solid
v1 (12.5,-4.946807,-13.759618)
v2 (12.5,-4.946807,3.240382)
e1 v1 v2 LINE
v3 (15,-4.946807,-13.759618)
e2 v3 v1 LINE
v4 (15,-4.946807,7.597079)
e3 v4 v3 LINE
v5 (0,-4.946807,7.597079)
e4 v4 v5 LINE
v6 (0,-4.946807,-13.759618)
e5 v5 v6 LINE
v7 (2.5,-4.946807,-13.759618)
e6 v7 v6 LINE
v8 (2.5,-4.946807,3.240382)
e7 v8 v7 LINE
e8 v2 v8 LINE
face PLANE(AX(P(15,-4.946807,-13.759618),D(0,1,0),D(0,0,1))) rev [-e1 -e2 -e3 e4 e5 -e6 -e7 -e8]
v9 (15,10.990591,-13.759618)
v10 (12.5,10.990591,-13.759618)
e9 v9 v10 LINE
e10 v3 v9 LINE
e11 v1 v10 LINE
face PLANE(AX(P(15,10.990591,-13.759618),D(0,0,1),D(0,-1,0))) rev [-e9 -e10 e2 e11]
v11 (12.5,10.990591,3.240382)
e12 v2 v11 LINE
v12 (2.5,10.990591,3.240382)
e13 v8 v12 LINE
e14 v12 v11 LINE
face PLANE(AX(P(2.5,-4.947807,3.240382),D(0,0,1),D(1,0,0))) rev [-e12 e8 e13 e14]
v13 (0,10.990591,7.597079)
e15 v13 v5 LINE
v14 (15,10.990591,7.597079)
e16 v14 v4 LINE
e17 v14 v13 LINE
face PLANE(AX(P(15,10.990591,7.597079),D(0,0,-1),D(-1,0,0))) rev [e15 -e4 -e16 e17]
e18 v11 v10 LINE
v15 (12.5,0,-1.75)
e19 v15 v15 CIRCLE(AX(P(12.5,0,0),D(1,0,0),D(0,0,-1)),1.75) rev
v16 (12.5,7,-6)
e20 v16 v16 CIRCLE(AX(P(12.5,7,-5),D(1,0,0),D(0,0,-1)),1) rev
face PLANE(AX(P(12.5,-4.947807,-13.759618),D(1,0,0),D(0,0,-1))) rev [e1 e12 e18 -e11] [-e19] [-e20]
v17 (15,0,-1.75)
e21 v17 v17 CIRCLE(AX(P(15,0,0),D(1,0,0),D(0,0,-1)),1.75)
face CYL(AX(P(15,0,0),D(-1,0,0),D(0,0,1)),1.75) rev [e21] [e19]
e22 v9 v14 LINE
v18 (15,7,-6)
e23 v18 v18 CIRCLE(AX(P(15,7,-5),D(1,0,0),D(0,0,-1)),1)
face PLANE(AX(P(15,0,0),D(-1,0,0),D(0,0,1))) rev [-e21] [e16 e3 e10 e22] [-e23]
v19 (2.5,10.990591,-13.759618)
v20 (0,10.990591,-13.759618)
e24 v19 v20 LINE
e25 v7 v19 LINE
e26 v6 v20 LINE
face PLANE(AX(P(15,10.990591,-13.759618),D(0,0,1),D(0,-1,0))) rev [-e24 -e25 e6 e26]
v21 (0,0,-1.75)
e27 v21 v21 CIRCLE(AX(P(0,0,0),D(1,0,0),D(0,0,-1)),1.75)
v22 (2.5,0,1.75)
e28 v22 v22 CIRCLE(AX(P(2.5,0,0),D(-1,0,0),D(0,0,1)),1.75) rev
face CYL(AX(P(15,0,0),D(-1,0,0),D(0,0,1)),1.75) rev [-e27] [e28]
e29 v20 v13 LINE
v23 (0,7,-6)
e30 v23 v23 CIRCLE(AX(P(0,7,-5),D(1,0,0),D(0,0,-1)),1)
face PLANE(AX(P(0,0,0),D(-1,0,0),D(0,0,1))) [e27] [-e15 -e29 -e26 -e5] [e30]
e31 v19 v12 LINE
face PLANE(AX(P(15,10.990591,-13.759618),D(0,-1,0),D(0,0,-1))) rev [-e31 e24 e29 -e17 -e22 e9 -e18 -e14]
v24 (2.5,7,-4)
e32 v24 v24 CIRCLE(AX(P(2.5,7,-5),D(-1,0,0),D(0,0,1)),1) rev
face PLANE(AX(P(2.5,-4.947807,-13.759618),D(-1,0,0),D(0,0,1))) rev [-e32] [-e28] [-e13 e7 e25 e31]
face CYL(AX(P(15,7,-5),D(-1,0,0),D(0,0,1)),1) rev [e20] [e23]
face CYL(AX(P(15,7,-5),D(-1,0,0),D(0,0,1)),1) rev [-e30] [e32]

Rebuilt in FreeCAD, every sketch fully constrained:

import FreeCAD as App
import Part
import Sketcher
from FreeCAD import Vector


def add_polygon(sketch, points):
    """Adds a closed chain of lines whose ends are joined by coincident constraints."""
    first, n = sketch.GeometryCount, len(points)
    for a, b in zip(points, points[1:] + points[:1]):
        sketch.addGeometry(Part.LineSegment(App.Vector(*a, 0), App.Vector(*b, 0)), False)
    for i in range(n):
        sketch.addConstraint(Sketcher.Constraint("Coincident", first + i, 2, first + (i + 1) % n, 1))

doc = App.newDocument("Part")
body = doc.addObject("PartDesign::Body", "Body")

sketch1 = doc.addObject("Sketcher::SketchObject", "Sketch")
body.addObject(sketch1)
sketch1.AttachmentSupport = (doc.YZ_Plane, [""])
sketch1.MapMode = "FlatFace"
add_polygon(sketch1, [(11, 7.6), (-4.9, 7.6), (-4.9, -13.8), (11, -13.8)])
sketch1.addGeometry(Part.Circle(Vector(0, 0, 0), Vector(0, 0, 1), 1.8), False)
sketch1.addGeometry(Part.Circle(Vector(7, -5, 0), Vector(0, 0, 1), 1), False)
sketch1.addConstraint(Sketcher.Constraint("Horizontal", 0))
sketch1.addConstraint(Sketcher.Constraint("Vertical", 1))
sketch1.addConstraint(Sketcher.Constraint("Horizontal", 2))
sketch1.addConstraint(Sketcher.Constraint("Vertical", 3))
sketch1.addConstraint(Sketcher.Constraint("Coincident", 4, 3, -1, 1))
sketch1.addConstraint(Sketcher.Constraint("Diameter", 5, 2.0))
sketch1.addConstraint(Sketcher.Constraint("Diameter", 4, 3.5))
sketch1.addConstraint(Sketcher.Constraint("DistanceX", -1, 1, 5, 3, 7.0))
sketch1.addConstraint(Sketcher.Constraint("DistanceY", 5, 3, -1, 1, 5.0))
sketch1.addConstraint(Sketcher.Constraint("DistanceX", 0, 2, 0, 1, 15.937399))
sketch1.addConstraint(Sketcher.Constraint("DistanceY", 1, 2, 1, 1, 21.356697))
sketch1.addConstraint(Sketcher.Constraint("DistanceY", -1, 1, 0, 2, 7.597079))
sketch1.addConstraint(Sketcher.Constraint("DistanceX", -1, 1, 2, 2, 10.990591))
pad1 = doc.addObject("PartDesign::Pad", "Pad")
body.addObject(pad1)
pad1.Profile = sketch1
pad1.Length = 15

sketch2 = doc.addObject("Sketcher::SketchObject", "Sketch001")
body.addObject(sketch2)
sketch2.AttachmentSupport = (doc.XZ_Plane, [""])
sketch2.MapMode = "FlatFace"
sketch2.AttachmentOffset = App.Placement(Vector(0, 0, -10.990591), App.Rotation())
add_polygon(sketch2, [(2, -14), (2, 3), (12, 3), (12, -14)])
sketch2.addConstraint(Sketcher.Constraint("Vertical", 0))
sketch2.addConstraint(Sketcher.Constraint("Horizontal", 1))
sketch2.addConstraint(Sketcher.Constraint("Vertical", 2))
sketch2.addConstraint(Sketcher.Constraint("Horizontal", 3))
sketch2.addConstraint(Sketcher.Constraint("DistanceX", 1, 1, 1, 2, 10.0))
sketch2.addConstraint(Sketcher.Constraint("DistanceY", 0, 1, 0, 2, 17.0))
sketch2.addConstraint(Sketcher.Constraint("DistanceX", -1, 1, 0, 2, 2.5))
sketch2.addConstraint(Sketcher.Constraint("DistanceY", -1, 1, 0, 2, 3.240382))
pocket1 = doc.addObject("PartDesign::Pocket", "Pocket")
body.addObject(pocket1)
pocket1.Profile = sketch2
pocket1.Type = "UpToFirst"
pocket1.Reversed = True

doc.recompute()
